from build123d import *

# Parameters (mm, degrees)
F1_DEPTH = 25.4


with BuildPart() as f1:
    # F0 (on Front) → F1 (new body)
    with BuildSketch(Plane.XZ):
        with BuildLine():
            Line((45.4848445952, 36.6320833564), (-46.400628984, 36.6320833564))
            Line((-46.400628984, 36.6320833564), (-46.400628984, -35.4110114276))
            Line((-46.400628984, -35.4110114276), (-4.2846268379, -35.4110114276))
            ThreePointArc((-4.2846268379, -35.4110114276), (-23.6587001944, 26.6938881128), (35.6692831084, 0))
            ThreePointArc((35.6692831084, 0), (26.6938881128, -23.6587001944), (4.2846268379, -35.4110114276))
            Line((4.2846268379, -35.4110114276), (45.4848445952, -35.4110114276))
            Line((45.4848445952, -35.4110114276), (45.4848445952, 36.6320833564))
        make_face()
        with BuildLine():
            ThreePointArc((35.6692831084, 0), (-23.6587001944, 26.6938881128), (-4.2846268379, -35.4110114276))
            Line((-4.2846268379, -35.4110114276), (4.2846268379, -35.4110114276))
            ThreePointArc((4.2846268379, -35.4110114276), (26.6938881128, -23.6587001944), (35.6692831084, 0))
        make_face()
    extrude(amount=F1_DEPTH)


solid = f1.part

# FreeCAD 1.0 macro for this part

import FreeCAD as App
import Part
import Sketcher
from FreeCAD import Vector
Q = App.Units.Quantity

doc = App.newDocument("Part")
body = doc.addObject("PartDesign::Body", "Body")

# Sketch on XZ plane
sketch1 = body.newObject("Sketcher::SketchObject", "Sketch")
sketch1.AttachmentSupport = (doc.getObject("XZ_Plane"), [""])
sketch1.MapMode = "FlatFace"
sketch1.addGeometry([
    Part.LineSegment(Vector(45, 37, 0), Vector(-46, 37, 0)),
    Part.LineSegment(Vector(-46, 37, 0), Vector(-46, -35, 0)),
    Part.LineSegment(Vector(-46, -35, 0), Vector(45, -35, 0)),
    Part.LineSegment(Vector(45, -35, 0), Vector(45, 37, 0)),
], False)
sketch1.addConstraint([
    Sketcher.Constraint("Coincident", 0, 2, 1, 1),
    Sketcher.Constraint("Coincident", 1, 2, 2, 1),
    Sketcher.Constraint("Coincident", 2, 2, 3, 1),
    Sketcher.Constraint("Coincident", 3, 2, 0, 1),
    Sketcher.Constraint("Horizontal", 0),
    Sketcher.Constraint("Vertical", 1),
    Sketcher.Constraint("Horizontal", 2),
    Sketcher.Constraint("Vertical", 3),
    Sketcher.Constraint("DistanceX", 0, 2, 0, 1, Q("91.885474 mm")),
    Sketcher.Constraint("DistanceY", 1, 2, 1, 1, Q("72.043095 mm")),
    Sketcher.Constraint("DistanceX", 0, 2, -1, 1, Q("46.400629 mm")),
    Sketcher.Constraint("DistanceY", 1, 2, -1, 1, Q("35.411011 mm")),
])
pad1 = body.newObject("PartDesign::Pad", "Pad")
pad1.Profile = sketch1
pad1.Length = Q("1 in")

doc.recompute()
